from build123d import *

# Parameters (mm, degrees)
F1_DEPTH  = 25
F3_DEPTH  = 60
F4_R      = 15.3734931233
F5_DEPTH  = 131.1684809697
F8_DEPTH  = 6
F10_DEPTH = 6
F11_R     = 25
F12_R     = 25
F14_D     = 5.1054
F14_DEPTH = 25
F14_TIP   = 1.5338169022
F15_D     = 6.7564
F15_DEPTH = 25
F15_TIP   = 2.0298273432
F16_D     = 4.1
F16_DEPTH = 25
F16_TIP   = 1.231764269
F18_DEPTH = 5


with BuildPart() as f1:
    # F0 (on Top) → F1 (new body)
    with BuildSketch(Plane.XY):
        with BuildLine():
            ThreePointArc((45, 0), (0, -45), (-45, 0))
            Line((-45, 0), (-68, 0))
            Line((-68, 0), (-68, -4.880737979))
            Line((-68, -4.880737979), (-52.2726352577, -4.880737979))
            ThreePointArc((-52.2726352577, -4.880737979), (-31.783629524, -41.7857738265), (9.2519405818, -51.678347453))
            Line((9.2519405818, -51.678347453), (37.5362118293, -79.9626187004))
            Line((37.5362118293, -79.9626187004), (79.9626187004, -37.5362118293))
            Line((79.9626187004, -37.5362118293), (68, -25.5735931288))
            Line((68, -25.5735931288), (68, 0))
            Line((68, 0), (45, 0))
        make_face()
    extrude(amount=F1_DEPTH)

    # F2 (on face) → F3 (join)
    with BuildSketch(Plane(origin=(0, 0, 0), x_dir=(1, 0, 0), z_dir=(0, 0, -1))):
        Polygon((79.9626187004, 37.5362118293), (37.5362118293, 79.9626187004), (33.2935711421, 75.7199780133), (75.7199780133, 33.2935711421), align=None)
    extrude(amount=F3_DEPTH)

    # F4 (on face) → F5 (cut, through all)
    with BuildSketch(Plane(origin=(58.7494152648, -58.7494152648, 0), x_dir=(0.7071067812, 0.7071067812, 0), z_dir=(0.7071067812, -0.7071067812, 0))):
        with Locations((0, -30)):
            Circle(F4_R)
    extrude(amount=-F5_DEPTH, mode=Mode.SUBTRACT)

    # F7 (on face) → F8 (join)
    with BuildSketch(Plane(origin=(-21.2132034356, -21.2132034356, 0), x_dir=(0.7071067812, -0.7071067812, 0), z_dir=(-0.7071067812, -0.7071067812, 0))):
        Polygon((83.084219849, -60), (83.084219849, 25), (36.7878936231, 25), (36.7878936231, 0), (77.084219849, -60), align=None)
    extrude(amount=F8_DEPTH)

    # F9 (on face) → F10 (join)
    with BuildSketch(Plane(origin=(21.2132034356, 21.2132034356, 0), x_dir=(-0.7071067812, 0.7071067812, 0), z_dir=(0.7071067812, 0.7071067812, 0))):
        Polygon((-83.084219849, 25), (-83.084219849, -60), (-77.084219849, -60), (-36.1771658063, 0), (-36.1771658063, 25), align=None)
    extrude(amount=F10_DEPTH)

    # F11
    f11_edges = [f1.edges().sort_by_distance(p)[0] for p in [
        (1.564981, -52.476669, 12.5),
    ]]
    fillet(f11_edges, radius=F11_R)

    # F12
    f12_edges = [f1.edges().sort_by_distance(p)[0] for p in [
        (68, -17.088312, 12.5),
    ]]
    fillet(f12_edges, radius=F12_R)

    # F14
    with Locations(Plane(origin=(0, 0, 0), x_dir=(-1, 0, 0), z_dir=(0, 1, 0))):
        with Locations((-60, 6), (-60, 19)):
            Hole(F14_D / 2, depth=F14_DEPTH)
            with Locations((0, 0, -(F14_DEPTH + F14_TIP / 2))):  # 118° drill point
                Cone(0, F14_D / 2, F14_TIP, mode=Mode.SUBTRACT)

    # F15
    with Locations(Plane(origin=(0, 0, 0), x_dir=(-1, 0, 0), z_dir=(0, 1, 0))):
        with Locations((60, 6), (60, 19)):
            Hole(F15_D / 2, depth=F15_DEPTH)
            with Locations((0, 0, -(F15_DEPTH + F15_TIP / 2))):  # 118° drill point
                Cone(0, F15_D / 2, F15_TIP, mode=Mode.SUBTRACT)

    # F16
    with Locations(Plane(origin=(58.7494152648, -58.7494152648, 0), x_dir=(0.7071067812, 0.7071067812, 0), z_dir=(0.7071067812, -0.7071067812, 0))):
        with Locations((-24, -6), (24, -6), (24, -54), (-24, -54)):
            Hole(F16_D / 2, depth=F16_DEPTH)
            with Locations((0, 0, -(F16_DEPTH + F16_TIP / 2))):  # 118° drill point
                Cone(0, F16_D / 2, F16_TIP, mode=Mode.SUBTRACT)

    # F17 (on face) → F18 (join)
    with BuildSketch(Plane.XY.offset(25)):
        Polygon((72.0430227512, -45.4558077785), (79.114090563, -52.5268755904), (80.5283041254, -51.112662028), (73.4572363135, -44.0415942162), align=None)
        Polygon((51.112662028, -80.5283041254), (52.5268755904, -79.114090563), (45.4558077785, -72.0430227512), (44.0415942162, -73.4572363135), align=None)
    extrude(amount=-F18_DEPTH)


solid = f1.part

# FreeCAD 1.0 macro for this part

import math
import FreeCAD as App
import Part
import Sketcher
Q = App.Units.Quantity


def edges_at(feature, points):
    """Names of the edges that pass closest to the given points."""
    edges = feature.Shape.Edges
    near = lambda p: min(range(len(edges)), key=lambda i: edges[i].distToShape(Part.Vertex(*p))[0])
    return sorted({f"Edge{near(p) + 1}" for p in points})

doc = App.newDocument("Part")
params = doc.addObject("Spreadsheet::Sheet", "Params")
for row, (alias, value) in enumerate([
    ("sketch1_radius", "45 mm"),
    ("sketch1_radius2", "52.5 mm"),
    ("sketch1_width", "23 mm"),
    ("sketch1_length", "40 mm"),
    ("sketch1_length2", "60 mm"),
    ("pad1_length", "25 mm"),
    ("sketch2_length", "60 mm"),
    ("sketch2_length2", "6 mm"),
    ("pad2_length", "60 mm"),
    ("sketch4_width", "6 mm"),
    ("sketch4_height", "85 mm"),
    ("sketch4_height2", "25 mm"),
    ("pad3_length", "6 mm"),
    ("sketch5_width", "6 mm"),
    ("sketch5_height", "85 mm"),
    ("sketch5_height2", "25 mm"),
    ("pad4_length", "6 mm"),
    ("fillet_radius", "25 mm"),
    ("fillet2_radius", "25 mm"),
    ("hole_diameter", "5.1054 mm"),
    ("hole_depth", "25 mm"),
    ("hole2_diameter", "6.7564 mm"),
    ("hole2_depth", "25 mm"),
    ("sketch8_diameter", "4.1 mm"),
    ("hole3_diameter", "4.1 mm"),
    ("hole3_depth", "25 mm"),
    ("sketch9_length", "10 mm"),
    ("sketch9_length2", "2 mm"),
    ("pad5_length", "5 mm"),
], start=1):
    params.set(f"A{row}", alias)
    params.set(f"B{row}", "=" + value)
    params.setAlias(f"B{row}", alias)

body = doc.addObject("PartDesign::Body", "Body")

# Sketch on XY plane
sketch1 = doc.addObject("Sketcher::SketchObject", "Sketch")
body.addObject(sketch1)
sketch1.AttachmentSupport = (doc.XY_Plane, [""])
sketch1.MapMode = "FlatFace"
sketch1.addGeometry([
    Part.ArcOfCircle(Part.Circle(App.Vector(0, 0, 0), App.Vector(0, 0, 1), 45), math.radians(180), math.radians(360)),  # 0
    Part.LineSegment(App.Vector(-45, 0, 0), App.Vector(-68, 0, 0)),  # 1
    Part.LineSegment(App.Vector(-68, 0, 0), App.Vector(-68, -4.880738, 0)),  # 2
    Part.LineSegment(App.Vector(-68, -4.880738, 0), App.Vector(-52.272635, -4.880738, 0)),  # 3
    Part.ArcOfCircle(Part.Circle(App.Vector(0, 0, 0), App.Vector(0, 0, 1), 52.5), math.radians(-174.665713), math.radians(-79.849905)),  # 4
    Part.LineSegment(App.Vector(9.251941, -51.678347, 0), App.Vector(37.536212, -79.962619, 0)),  # 5
    Part.LineSegment(App.Vector(37.536212, -79.962619, 0), App.Vector(79.962619, -37.536212, 0)),  # 6
    Part.LineSegment(App.Vector(79.962619, -37.536212, 0), App.Vector(68, -25.573593, 0)),  # 7
    Part.LineSegment(App.Vector(68, -25.573593, 0), App.Vector(68, 0, 0)),  # 8
    Part.LineSegment(App.Vector(68, 0, 0), App.Vector(45, 0, 0)),  # 9
], False)
sketch1.addConstraint([
    Sketcher.Constraint("Coincident", 0, 1, 1, 1),
    Sketcher.Constraint("Coincident", 1, 2, 2, 1),
    Sketcher.Constraint("Coincident", 2, 2, 3, 1),
    Sketcher.Constraint("Coincident", 3, 2, 4, 1),
    Sketcher.Constraint("Coincident", 4, 2, 5, 1),
    Sketcher.Constraint("Coincident", 5, 2, 6, 1),
    Sketcher.Constraint("Coincident", 6, 2, 7, 1),
    Sketcher.Constraint("Coincident", 7, 2, 8, 1),
    Sketcher.Constraint("Coincident", 8, 2, 9, 1),
    Sketcher.Constraint("Coincident", 9, 2, 0, 2),
    Sketcher.Constraint("Horizontal", 1),
    Sketcher.Constraint("Vertical", 2),
    Sketcher.Constraint("Horizontal", 3),
    Sketcher.Constraint("Vertical", 8),
    Sketcher.Constraint("Horizontal", 9),
    Sketcher.Constraint("Coincident", 0, 3, -1, 1),
    Sketcher.Constraint("Coincident", 4, 3, -1, 1),
    Sketcher.Constraint("Symmetric", 1, 2, 8, 2, -1, 1),
    Sketcher.Constraint("PointOnObject", 0, 1, -1),
    Sketcher.Constraint("Perpendicular", 5, 6),
    Sketcher.Constraint("Perpendicular", 6, 7),
    Sketcher.Constraint("Radius", 0, 45.0),
    Sketcher.Constraint("Radius", 4, 52.5),
    Sketcher.Constraint("DistanceX", 1, 2, 1, 1, 23.0),
    Sketcher.Constraint("Angle", 5, Q("-45 deg")),
    Sketcher.Constraint("Distance", 5, 40.0),
    Sketcher.Constraint("Distance", 6, 60.0),
    Sketcher.Constraint("DistanceX", 3, 1, 3, 2, 15.727365),
    Sketcher.Constraint("DistanceY", 8, 1, 8, 2, 25.573593),
])
sketch1.setExpression("Constraints[21]", "Params.sketch1_radius")
sketch1.setExpression("Constraints[22]", "Params.sketch1_radius2")
sketch1.setExpression("Constraints[23]", "Params.sketch1_width")
sketch1.setExpression("Constraints[25]", "Params.sketch1_length")
sketch1.setExpression("Constraints[26]", "Params.sketch1_length2")
pad1 = doc.addObject("PartDesign::Pad", "Pad")
body.addObject(pad1)
pad1.Profile = sketch1
pad1.setExpression("Length", "Params.pad1_length")

# Sketch on XY plane
sketch2 = doc.addObject("Sketcher::SketchObject", "Sketch001")
body.addObject(sketch2)
sketch2.AttachmentSupport = (doc.XY_Plane, [""])
sketch2.MapMode = "FlatFace"
sketch2.addGeometry([
    Part.LineSegment(App.Vector(79.962619, -37.536212, 0), App.Vector(37.536212, -79.962619, 0)),
    Part.LineSegment(App.Vector(37.536212, -79.962619, 0), App.Vector(33.293571, -75.719978, 0)),
    Part.LineSegment(App.Vector(33.293571, -75.719978, 0), App.Vector(75.719978, -33.293571, 0)),
    Part.LineSegment(App.Vector(75.719978, -33.293571, 0), App.Vector(79.962619, -37.536212, 0)),
], False)
sketch2.addConstraint([
    Sketcher.Constraint("Coincident", 0, 2, 1, 1),
    Sketcher.Constraint("Coincident", 1, 2, 2, 1),
    Sketcher.Constraint("Coincident", 2, 2, 3, 1),
    Sketcher.Constraint("Coincident", 3, 2, 0, 1),
    Sketcher.Constraint("Perpendicular", 0, 1),
    Sketcher.Constraint("Perpendicular", 1, 2),
    Sketcher.Constraint("Perpendicular", 2, 3),
    Sketcher.Constraint("Angle", 0, Q("-135 deg")),
    Sketcher.Constraint("Distance", 0, 60.0),
    Sketcher.Constraint("Distance", 1, 6.0),
    Sketcher.Constraint("DistanceX", -1, 1, 0, 2, 37.536212),
    Sketcher.Constraint("DistanceY", 0, 2, -1, 1, 79.962619),
])
sketch2.setExpression("Constraints[8]", "Params.sketch2_length")
sketch2.setExpression("Constraints[9]", "Params.sketch2_length2")
pad2 = doc.addObject("PartDesign::Pad", "Pad001")
body.addObject(pad2)
pad2.Profile = sketch2
pad2.setExpression("Length", "Params.pad2_length")
pad2.Reversed = True

# Sketch on an angled plane
sketch3 = doc.addObject("Sketcher::SketchObject", "Sketch002")
body.addObject(sketch3)
sketch3.Placement = App.Placement(App.Vector(58.749415, -58.749415, 0), App.Rotation(App.Vector(0.707106781, 0.707106781, 0), App.Vector(0, 0, 0.999999999), App.Vector(0.707106781, -0.707106781, 0), "ZXY"))
sketch3.addGeometry(Part.Circle(App.Vector(0, -30, 0), App.Vector(0, 0, 1), 15.373493), False)
sketch3.addConstraint([
    Sketcher.Constraint("PointOnObject", 0, 3, -2),
    Sketcher.Constraint("DistanceY", 0, 3, -1, 1, 30.0),
    Sketcher.Constraint("Diameter", 0, 30.746986),
])
pocket1 = doc.addObject("PartDesign::Pocket", "Pocket")
body.addObject(pocket1)
pocket1.Profile = sketch3
pocket1.Type = "ThroughAll"

# Sketch on an angled plane
sketch4 = doc.addObject("Sketcher::SketchObject", "Sketch003")
body.addObject(sketch4)
sketch4.Placement = App.Placement(App.Vector(-21.213203, -21.213203, 0), App.Rotation(App.Vector(0.707106781, -0.707106781, 0), App.Vector(0, 0, 0.999999999), App.Vector(-0.707106781, -0.707106781, 0), "ZXY"))
sketch4.addGeometry([
    Part.LineSegment(App.Vector(83.08422, -60, 0), App.Vector(83.08422, 25, 0)),  # 0
    Part.LineSegment(App.Vector(83.08422, 25, 0), App.Vector(36.787894, 25, 0)),  # 1
    Part.LineSegment(App.Vector(36.787894, 25, 0), App.Vector(36.787894, 0, 0)),  # 2
    Part.LineSegment(App.Vector(36.787894, 0, 0), App.Vector(77.08422, -60, 0)),  # 3
    Part.LineSegment(App.Vector(77.08422, -60, 0), App.Vector(83.08422, -60, 0)),  # 4
], False)
sketch4.addConstraint([
    Sketcher.Constraint("Coincident", 0, 2, 1, 1),
    Sketcher.Constraint("Coincident", 1, 2, 2, 1),
    Sketcher.Constraint("Coincident", 2, 2, 3, 1),
    Sketcher.Constraint("Coincident", 3, 2, 4, 1),
    Sketcher.Constraint("Coincident", 4, 2, 0, 1),
    Sketcher.Constraint("Vertical", 0),
    Sketcher.Constraint("Horizontal", 1),
    Sketcher.Constraint("Vertical", 2),
    Sketcher.Constraint("Horizontal", 4),
    Sketcher.Constraint("PointOnObject", 2, 2, -1),
    Sketcher.Constraint("DistanceX", 4, 1, 4, 2, 6.0),
    Sketcher.Constraint("DistanceY", 0, 1, 0, 2, 85.0),
    Sketcher.Constraint("DistanceY", 2, 2, 2, 1, 25.0),
    Sketcher.Constraint("Distance", 3, 72.275818),
    Sketcher.Constraint("DistanceX", -1, 1, 0, 2, 83.08422),
])
sketch4.setExpression("Constraints[10]", "Params.sketch4_width")
sketch4.setExpression("Constraints[11]", "Params.sketch4_height")
sketch4.setExpression("Constraints[12]", "Params.sketch4_height2")
pad3 = doc.addObject("PartDesign::Pad", "Pad002")
body.addObject(pad3)
pad3.Profile = sketch4
pad3.setExpression("Length", "Params.pad3_length")

# Sketch on an angled plane
sketch5 = doc.addObject("Sketcher::SketchObject", "Sketch004")
body.addObject(sketch5)
sketch5.Placement = App.Placement(App.Vector(21.213203, 21.213203, 0), App.Rotation(App.Vector(-0.707106781, 0.707106781, 0), App.Vector(0, 0, 0.999999999), App.Vector(0.707106781, 0.707106781, 0), "ZXY"))
sketch5.addGeometry([
    Part.LineSegment(App.Vector(-83.08422, 25, 0), App.Vector(-83.08422, -60, 0)),  # 0
    Part.LineSegment(App.Vector(-83.08422, -60, 0), App.Vector(-77.08422, -60, 0)),  # 1
    Part.LineSegment(App.Vector(-77.08422, -60, 0), App.Vector(-36.177166, 0, 0)),  # 2
    Part.LineSegment(App.Vector(-36.177166, 0, 0), App.Vector(-36.177166, 25, 0)),  # 3
    Part.LineSegment(App.Vector(-36.177166, 25, 0), App.Vector(-83.08422, 25, 0)),  # 4
], False)
sketch5.addConstraint([
    Sketcher.Constraint("Coincident", 0, 2, 1, 1),
    Sketcher.Constraint("Coincident", 1, 2, 2, 1),
    Sketcher.Constraint("Coincident", 2, 2, 3, 1),
    Sketcher.Constraint("Coincident", 3, 2, 4, 1),
    Sketcher.Constraint("Coincident", 4, 2, 0, 1),
    Sketcher.Constraint("Vertical", 0),
    Sketcher.Constraint("Horizontal", 1),
    Sketcher.Constraint("Vertical", 3),
    Sketcher.Constraint("Horizontal", 4),
    Sketcher.Constraint("PointOnObject", 2, 2, -1),
    Sketcher.Constraint("DistanceX", 1, 1, 1, 2, 6.0),
    Sketcher.Constraint("DistanceY", 0, 2, 0, 1, 85.0),
    Sketcher.Constraint("DistanceY", 3, 1, 3, 2, 25.0),
    Sketcher.Constraint("Distance", 2, 72.61809),
    Sketcher.Constraint("DistanceX", 0, 2, -1, 1, 83.08422),
])
sketch5.setExpression("Constraints[10]", "Params.sketch5_width")
sketch5.setExpression("Constraints[11]", "Params.sketch5_height")
sketch5.setExpression("Constraints[12]", "Params.sketch5_height2")
pad4 = doc.addObject("PartDesign::Pad", "Pad003")
body.addObject(pad4)
pad4.Profile = sketch5
pad4.setExpression("Length", "Params.pad4_length")
doc.recompute()

fillet = doc.addObject("PartDesign::Fillet", "Fillet")
body.addObject(fillet)
fillet.Base = (pad4, edges_at(pad4, [(1.565, -52.477, 12.5)]))
fillet.setExpression("Radius", "Params.fillet_radius")
doc.recompute()

fillet2 = doc.addObject("PartDesign::Fillet", "Fillet001")
body.addObject(fillet2)
fillet2.Base = (fillet, edges_at(fillet, [(68, -17.088, 12.5)]))
fillet2.setExpression("Radius", "Params.fillet2_radius")

# Sketch on XZ plane
sketch6 = doc.addObject("Sketcher::SketchObject", "Sketch005")
body.addObject(sketch6)
sketch6.AttachmentSupport = (doc.XZ_Plane, [""])
sketch6.MapMode = "FlatFace"
sketch6.addGeometry([
    Part.Circle(App.Vector(60, 6, 0), App.Vector(0, 0, 1), 2.5527),
    Part.Circle(App.Vector(60, 19, 0), App.Vector(0, 0, 1), 2.5527),
], False)
sketch6.addConstraint([
    Sketcher.Constraint("Equal", 0, 1),
    Sketcher.Constraint("Vertical", 0, 3, 1, 3),
    Sketcher.Constraint("DistanceX", -1, 1, 0, 3, 60.0),
    Sketcher.Constraint("DistanceY", -1, 1, 0, 3, 6.0),
    Sketcher.Constraint("DistanceY", -1, 1, 1, 3, 19.0),
    Sketcher.Constraint("Diameter", 0, 5.1054),
])
doc.recompute()
hole = doc.addObject("PartDesign::Hole", "Hole")
body.addObject(hole)
hole.Profile = sketch6
hole.ThreadType = "None"
hole.setExpression("Diameter", "Params.hole_diameter")
hole.DepthType = "Dimension"
hole.setExpression("Depth", "Params.hole_depth")
hole.DrillPoint = "Angled"
hole.DrillPointAngle = 118
hole.Reversed = True

# Sketch on XZ plane
sketch7 = doc.addObject("Sketcher::SketchObject", "Sketch006")
body.addObject(sketch7)
sketch7.AttachmentSupport = (doc.XZ_Plane, [""])
sketch7.MapMode = "FlatFace"
sketch7.addGeometry([
    Part.Circle(App.Vector(-60, 6, 0), App.Vector(0, 0, 1), 3.3782),
    Part.Circle(App.Vector(-60, 19, 0), App.Vector(0, 0, 1), 3.3782),
], False)
sketch7.addConstraint([
    Sketcher.Constraint("Equal", 0, 1),
    Sketcher.Constraint("Vertical", 0, 3, 1, 3),
    Sketcher.Constraint("DistanceX", 0, 3, -1, 1, 60.0),
    Sketcher.Constraint("DistanceY", -1, 1, 0, 3, 6.0),
    Sketcher.Constraint("DistanceY", -1, 1, 1, 3, 19.0),
    Sketcher.Constraint("Diameter", 0, 6.7564),
])
doc.recompute()
hole2 = doc.addObject("PartDesign::Hole", "Hole001")
body.addObject(hole2)
hole2.Profile = sketch7
hole2.ThreadType = "None"
hole2.setExpression("Diameter", "Params.hole2_diameter")
hole2.DepthType = "Dimension"
hole2.setExpression("Depth", "Params.hole2_depth")
hole2.DrillPoint = "Angled"
hole2.DrillPointAngle = 118
hole2.Reversed = True

# Sketch on an angled plane
sketch8 = doc.addObject("Sketcher::SketchObject", "Sketch007")
body.addObject(sketch8)
sketch8.Placement = App.Placement(App.Vector(58.749415, -58.749415, 0), App.Rotation(App.Vector(0.707106781, 0.707106781, 0), App.Vector(0, 0, 0.999999999), App.Vector(0.707106781, -0.707106781, 0), "ZXY"))
sketch8.addGeometry([
    Part.Circle(App.Vector(-24, -6, 0), App.Vector(0, 0, 1), 2.05),
    Part.Circle(App.Vector(24, -6, 0), App.Vector(0, 0, 1), 2.05),
    Part.Circle(App.Vector(24, -54, 0), App.Vector(0, 0, 1), 2.05),
    Part.Circle(App.Vector(-24, -54, 0), App.Vector(0, 0, 1), 2.05),
], False)
sketch8.addConstraint([
    Sketcher.Constraint("Equal", 0, 1),
    Sketcher.Constraint("Equal", 1, 2),
    Sketcher.Constraint("Equal", 2, 3),
    Sketcher.Constraint("Symmetric", 0, 3, 1, 3, -2),
    Sketcher.Constraint("Symmetric", 2, 3, 3, 3, -2),
    Sketcher.Constraint("Vertical", 1, 3, 2, 3),
    Sketcher.Constraint("Diameter", 0, 4.1),
    Sketcher.Constraint("DistanceX", 0, 3, -1, 1, 24.0),
    Sketcher.Constraint("DistanceY", 0, 3, -1, 1, 6.0),
    Sketcher.Constraint("DistanceY", 2, 3, -1, 1, 54.0),
])
sketch8.setExpression("Constraints[6]", "Params.sketch8_diameter")
doc.recompute()
hole3 = doc.addObject("PartDesign::Hole", "Hole002")
body.addObject(hole3)
hole3.Profile = sketch8
hole3.ThreadType = "None"
hole3.setExpression("Diameter", "Params.hole3_diameter")
hole3.DepthType = "Dimension"
hole3.setExpression("Depth", "Params.hole3_depth")
hole3.DrillPoint = "Angled"
hole3.DrillPointAngle = 118

# Sketch on XY plane
sketch9 = doc.addObject("Sketcher::SketchObject", "Sketch008")
body.addObject(sketch9)
sketch9.AttachmentSupport = (doc.XY_Plane, [""])
sketch9.MapMode = "FlatFace"
sketch9.AttachmentOffset = App.Placement(App.Vector(0, 0, 25), App.Rotation())
sketch9.addGeometry([
    Part.LineSegment(App.Vector(72.043023, -45.455808, 0), App.Vector(79.114091, -52.526876, 0)),  # 0
    Part.LineSegment(App.Vector(79.114091, -52.526876, 0), App.Vector(80.528304, -51.112662, 0)),  # 1
    Part.LineSegment(App.Vector(80.528304, -51.112662, 0), App.Vector(73.457236, -44.041594, 0)),  # 2
    Part.LineSegment(App.Vector(73.457236, -44.041594, 0), App.Vector(72.043023, -45.455808, 0)),  # 3
    Part.LineSegment(App.Vector(51.112662, -80.528304, 0), App.Vector(52.526876, -79.114091, 0)),  # 4
    Part.LineSegment(App.Vector(52.526876, -79.114091, 0), App.Vector(45.455808, -72.043023, 0)),  # 5
    Part.LineSegment(App.Vector(45.455808, -72.043023, 0), App.Vector(44.041594, -73.457236, 0)),  # 6
    Part.LineSegment(App.Vector(44.041594, -73.457236, 0), App.Vector(51.112662, -80.528304, 0)),  # 7
], False)
sketch9.addConstraint([
    Sketcher.Constraint("Coincident", 0, 2, 1, 1),
    Sketcher.Constraint("Coincident", 1, 2, 2, 1),
    Sketcher.Constraint("Coincident", 2, 2, 3, 1),
    Sketcher.Constraint("Coincident", 3, 2, 0, 1),
    Sketcher.Constraint("Coincident", 4, 2, 5, 1),
    Sketcher.Constraint("Coincident", 5, 2, 6, 1),
    Sketcher.Constraint("Coincident", 6, 2, 7, 1),
    Sketcher.Constraint("Coincident", 7, 2, 4, 1),
    Sketcher.Constraint("Perpendicular", 0, 1),
    Sketcher.Constraint("Perpendicular", 1, 2),
    Sketcher.Constraint("Perpendicular", 2, 3),
    Sketcher.Constraint("Parallel", 3, 4),
    Sketcher.Constraint("Perpendicular", 4, 5),
    Sketcher.Constraint("Perpendicular", 5, 6),
    Sketcher.Constraint("Perpendicular", 6, 7),
    Sketcher.Constraint("Equal", 3, 4),
    Sketcher.Constraint("Equal", 2, 5),
    Sketcher.Constraint("Angle", 0, Q("-45 deg")),
    Sketcher.Constraint("Distance", 0, 10.0),
    Sketcher.Constraint("Distance", 1, 2.0),
    Sketcher.Constraint("DistanceX", -1, 1, 0, 2, 79.114091),
    Sketcher.Constraint("DistanceY", 4, 2, -1, 1, 79.114091),
    Sketcher.Constraint("DistanceX", 4, 2, 1, 2, 28.001429),
    Sketcher.Constraint("DistanceY", 4, 2, 1, 2, 28.001429),
])
sketch9.setExpression("Constraints[18]", "Params.sketch9_length")
sketch9.setExpression("Constraints[19]", "Params.sketch9_length2")
pad5 = doc.addObject("PartDesign::Pad", "Pad004")
body.addObject(pad5)
pad5.Profile = sketch9
pad5.setExpression("Length", "Params.pad5_length")
pad5.Reversed = True

doc.recompute()
